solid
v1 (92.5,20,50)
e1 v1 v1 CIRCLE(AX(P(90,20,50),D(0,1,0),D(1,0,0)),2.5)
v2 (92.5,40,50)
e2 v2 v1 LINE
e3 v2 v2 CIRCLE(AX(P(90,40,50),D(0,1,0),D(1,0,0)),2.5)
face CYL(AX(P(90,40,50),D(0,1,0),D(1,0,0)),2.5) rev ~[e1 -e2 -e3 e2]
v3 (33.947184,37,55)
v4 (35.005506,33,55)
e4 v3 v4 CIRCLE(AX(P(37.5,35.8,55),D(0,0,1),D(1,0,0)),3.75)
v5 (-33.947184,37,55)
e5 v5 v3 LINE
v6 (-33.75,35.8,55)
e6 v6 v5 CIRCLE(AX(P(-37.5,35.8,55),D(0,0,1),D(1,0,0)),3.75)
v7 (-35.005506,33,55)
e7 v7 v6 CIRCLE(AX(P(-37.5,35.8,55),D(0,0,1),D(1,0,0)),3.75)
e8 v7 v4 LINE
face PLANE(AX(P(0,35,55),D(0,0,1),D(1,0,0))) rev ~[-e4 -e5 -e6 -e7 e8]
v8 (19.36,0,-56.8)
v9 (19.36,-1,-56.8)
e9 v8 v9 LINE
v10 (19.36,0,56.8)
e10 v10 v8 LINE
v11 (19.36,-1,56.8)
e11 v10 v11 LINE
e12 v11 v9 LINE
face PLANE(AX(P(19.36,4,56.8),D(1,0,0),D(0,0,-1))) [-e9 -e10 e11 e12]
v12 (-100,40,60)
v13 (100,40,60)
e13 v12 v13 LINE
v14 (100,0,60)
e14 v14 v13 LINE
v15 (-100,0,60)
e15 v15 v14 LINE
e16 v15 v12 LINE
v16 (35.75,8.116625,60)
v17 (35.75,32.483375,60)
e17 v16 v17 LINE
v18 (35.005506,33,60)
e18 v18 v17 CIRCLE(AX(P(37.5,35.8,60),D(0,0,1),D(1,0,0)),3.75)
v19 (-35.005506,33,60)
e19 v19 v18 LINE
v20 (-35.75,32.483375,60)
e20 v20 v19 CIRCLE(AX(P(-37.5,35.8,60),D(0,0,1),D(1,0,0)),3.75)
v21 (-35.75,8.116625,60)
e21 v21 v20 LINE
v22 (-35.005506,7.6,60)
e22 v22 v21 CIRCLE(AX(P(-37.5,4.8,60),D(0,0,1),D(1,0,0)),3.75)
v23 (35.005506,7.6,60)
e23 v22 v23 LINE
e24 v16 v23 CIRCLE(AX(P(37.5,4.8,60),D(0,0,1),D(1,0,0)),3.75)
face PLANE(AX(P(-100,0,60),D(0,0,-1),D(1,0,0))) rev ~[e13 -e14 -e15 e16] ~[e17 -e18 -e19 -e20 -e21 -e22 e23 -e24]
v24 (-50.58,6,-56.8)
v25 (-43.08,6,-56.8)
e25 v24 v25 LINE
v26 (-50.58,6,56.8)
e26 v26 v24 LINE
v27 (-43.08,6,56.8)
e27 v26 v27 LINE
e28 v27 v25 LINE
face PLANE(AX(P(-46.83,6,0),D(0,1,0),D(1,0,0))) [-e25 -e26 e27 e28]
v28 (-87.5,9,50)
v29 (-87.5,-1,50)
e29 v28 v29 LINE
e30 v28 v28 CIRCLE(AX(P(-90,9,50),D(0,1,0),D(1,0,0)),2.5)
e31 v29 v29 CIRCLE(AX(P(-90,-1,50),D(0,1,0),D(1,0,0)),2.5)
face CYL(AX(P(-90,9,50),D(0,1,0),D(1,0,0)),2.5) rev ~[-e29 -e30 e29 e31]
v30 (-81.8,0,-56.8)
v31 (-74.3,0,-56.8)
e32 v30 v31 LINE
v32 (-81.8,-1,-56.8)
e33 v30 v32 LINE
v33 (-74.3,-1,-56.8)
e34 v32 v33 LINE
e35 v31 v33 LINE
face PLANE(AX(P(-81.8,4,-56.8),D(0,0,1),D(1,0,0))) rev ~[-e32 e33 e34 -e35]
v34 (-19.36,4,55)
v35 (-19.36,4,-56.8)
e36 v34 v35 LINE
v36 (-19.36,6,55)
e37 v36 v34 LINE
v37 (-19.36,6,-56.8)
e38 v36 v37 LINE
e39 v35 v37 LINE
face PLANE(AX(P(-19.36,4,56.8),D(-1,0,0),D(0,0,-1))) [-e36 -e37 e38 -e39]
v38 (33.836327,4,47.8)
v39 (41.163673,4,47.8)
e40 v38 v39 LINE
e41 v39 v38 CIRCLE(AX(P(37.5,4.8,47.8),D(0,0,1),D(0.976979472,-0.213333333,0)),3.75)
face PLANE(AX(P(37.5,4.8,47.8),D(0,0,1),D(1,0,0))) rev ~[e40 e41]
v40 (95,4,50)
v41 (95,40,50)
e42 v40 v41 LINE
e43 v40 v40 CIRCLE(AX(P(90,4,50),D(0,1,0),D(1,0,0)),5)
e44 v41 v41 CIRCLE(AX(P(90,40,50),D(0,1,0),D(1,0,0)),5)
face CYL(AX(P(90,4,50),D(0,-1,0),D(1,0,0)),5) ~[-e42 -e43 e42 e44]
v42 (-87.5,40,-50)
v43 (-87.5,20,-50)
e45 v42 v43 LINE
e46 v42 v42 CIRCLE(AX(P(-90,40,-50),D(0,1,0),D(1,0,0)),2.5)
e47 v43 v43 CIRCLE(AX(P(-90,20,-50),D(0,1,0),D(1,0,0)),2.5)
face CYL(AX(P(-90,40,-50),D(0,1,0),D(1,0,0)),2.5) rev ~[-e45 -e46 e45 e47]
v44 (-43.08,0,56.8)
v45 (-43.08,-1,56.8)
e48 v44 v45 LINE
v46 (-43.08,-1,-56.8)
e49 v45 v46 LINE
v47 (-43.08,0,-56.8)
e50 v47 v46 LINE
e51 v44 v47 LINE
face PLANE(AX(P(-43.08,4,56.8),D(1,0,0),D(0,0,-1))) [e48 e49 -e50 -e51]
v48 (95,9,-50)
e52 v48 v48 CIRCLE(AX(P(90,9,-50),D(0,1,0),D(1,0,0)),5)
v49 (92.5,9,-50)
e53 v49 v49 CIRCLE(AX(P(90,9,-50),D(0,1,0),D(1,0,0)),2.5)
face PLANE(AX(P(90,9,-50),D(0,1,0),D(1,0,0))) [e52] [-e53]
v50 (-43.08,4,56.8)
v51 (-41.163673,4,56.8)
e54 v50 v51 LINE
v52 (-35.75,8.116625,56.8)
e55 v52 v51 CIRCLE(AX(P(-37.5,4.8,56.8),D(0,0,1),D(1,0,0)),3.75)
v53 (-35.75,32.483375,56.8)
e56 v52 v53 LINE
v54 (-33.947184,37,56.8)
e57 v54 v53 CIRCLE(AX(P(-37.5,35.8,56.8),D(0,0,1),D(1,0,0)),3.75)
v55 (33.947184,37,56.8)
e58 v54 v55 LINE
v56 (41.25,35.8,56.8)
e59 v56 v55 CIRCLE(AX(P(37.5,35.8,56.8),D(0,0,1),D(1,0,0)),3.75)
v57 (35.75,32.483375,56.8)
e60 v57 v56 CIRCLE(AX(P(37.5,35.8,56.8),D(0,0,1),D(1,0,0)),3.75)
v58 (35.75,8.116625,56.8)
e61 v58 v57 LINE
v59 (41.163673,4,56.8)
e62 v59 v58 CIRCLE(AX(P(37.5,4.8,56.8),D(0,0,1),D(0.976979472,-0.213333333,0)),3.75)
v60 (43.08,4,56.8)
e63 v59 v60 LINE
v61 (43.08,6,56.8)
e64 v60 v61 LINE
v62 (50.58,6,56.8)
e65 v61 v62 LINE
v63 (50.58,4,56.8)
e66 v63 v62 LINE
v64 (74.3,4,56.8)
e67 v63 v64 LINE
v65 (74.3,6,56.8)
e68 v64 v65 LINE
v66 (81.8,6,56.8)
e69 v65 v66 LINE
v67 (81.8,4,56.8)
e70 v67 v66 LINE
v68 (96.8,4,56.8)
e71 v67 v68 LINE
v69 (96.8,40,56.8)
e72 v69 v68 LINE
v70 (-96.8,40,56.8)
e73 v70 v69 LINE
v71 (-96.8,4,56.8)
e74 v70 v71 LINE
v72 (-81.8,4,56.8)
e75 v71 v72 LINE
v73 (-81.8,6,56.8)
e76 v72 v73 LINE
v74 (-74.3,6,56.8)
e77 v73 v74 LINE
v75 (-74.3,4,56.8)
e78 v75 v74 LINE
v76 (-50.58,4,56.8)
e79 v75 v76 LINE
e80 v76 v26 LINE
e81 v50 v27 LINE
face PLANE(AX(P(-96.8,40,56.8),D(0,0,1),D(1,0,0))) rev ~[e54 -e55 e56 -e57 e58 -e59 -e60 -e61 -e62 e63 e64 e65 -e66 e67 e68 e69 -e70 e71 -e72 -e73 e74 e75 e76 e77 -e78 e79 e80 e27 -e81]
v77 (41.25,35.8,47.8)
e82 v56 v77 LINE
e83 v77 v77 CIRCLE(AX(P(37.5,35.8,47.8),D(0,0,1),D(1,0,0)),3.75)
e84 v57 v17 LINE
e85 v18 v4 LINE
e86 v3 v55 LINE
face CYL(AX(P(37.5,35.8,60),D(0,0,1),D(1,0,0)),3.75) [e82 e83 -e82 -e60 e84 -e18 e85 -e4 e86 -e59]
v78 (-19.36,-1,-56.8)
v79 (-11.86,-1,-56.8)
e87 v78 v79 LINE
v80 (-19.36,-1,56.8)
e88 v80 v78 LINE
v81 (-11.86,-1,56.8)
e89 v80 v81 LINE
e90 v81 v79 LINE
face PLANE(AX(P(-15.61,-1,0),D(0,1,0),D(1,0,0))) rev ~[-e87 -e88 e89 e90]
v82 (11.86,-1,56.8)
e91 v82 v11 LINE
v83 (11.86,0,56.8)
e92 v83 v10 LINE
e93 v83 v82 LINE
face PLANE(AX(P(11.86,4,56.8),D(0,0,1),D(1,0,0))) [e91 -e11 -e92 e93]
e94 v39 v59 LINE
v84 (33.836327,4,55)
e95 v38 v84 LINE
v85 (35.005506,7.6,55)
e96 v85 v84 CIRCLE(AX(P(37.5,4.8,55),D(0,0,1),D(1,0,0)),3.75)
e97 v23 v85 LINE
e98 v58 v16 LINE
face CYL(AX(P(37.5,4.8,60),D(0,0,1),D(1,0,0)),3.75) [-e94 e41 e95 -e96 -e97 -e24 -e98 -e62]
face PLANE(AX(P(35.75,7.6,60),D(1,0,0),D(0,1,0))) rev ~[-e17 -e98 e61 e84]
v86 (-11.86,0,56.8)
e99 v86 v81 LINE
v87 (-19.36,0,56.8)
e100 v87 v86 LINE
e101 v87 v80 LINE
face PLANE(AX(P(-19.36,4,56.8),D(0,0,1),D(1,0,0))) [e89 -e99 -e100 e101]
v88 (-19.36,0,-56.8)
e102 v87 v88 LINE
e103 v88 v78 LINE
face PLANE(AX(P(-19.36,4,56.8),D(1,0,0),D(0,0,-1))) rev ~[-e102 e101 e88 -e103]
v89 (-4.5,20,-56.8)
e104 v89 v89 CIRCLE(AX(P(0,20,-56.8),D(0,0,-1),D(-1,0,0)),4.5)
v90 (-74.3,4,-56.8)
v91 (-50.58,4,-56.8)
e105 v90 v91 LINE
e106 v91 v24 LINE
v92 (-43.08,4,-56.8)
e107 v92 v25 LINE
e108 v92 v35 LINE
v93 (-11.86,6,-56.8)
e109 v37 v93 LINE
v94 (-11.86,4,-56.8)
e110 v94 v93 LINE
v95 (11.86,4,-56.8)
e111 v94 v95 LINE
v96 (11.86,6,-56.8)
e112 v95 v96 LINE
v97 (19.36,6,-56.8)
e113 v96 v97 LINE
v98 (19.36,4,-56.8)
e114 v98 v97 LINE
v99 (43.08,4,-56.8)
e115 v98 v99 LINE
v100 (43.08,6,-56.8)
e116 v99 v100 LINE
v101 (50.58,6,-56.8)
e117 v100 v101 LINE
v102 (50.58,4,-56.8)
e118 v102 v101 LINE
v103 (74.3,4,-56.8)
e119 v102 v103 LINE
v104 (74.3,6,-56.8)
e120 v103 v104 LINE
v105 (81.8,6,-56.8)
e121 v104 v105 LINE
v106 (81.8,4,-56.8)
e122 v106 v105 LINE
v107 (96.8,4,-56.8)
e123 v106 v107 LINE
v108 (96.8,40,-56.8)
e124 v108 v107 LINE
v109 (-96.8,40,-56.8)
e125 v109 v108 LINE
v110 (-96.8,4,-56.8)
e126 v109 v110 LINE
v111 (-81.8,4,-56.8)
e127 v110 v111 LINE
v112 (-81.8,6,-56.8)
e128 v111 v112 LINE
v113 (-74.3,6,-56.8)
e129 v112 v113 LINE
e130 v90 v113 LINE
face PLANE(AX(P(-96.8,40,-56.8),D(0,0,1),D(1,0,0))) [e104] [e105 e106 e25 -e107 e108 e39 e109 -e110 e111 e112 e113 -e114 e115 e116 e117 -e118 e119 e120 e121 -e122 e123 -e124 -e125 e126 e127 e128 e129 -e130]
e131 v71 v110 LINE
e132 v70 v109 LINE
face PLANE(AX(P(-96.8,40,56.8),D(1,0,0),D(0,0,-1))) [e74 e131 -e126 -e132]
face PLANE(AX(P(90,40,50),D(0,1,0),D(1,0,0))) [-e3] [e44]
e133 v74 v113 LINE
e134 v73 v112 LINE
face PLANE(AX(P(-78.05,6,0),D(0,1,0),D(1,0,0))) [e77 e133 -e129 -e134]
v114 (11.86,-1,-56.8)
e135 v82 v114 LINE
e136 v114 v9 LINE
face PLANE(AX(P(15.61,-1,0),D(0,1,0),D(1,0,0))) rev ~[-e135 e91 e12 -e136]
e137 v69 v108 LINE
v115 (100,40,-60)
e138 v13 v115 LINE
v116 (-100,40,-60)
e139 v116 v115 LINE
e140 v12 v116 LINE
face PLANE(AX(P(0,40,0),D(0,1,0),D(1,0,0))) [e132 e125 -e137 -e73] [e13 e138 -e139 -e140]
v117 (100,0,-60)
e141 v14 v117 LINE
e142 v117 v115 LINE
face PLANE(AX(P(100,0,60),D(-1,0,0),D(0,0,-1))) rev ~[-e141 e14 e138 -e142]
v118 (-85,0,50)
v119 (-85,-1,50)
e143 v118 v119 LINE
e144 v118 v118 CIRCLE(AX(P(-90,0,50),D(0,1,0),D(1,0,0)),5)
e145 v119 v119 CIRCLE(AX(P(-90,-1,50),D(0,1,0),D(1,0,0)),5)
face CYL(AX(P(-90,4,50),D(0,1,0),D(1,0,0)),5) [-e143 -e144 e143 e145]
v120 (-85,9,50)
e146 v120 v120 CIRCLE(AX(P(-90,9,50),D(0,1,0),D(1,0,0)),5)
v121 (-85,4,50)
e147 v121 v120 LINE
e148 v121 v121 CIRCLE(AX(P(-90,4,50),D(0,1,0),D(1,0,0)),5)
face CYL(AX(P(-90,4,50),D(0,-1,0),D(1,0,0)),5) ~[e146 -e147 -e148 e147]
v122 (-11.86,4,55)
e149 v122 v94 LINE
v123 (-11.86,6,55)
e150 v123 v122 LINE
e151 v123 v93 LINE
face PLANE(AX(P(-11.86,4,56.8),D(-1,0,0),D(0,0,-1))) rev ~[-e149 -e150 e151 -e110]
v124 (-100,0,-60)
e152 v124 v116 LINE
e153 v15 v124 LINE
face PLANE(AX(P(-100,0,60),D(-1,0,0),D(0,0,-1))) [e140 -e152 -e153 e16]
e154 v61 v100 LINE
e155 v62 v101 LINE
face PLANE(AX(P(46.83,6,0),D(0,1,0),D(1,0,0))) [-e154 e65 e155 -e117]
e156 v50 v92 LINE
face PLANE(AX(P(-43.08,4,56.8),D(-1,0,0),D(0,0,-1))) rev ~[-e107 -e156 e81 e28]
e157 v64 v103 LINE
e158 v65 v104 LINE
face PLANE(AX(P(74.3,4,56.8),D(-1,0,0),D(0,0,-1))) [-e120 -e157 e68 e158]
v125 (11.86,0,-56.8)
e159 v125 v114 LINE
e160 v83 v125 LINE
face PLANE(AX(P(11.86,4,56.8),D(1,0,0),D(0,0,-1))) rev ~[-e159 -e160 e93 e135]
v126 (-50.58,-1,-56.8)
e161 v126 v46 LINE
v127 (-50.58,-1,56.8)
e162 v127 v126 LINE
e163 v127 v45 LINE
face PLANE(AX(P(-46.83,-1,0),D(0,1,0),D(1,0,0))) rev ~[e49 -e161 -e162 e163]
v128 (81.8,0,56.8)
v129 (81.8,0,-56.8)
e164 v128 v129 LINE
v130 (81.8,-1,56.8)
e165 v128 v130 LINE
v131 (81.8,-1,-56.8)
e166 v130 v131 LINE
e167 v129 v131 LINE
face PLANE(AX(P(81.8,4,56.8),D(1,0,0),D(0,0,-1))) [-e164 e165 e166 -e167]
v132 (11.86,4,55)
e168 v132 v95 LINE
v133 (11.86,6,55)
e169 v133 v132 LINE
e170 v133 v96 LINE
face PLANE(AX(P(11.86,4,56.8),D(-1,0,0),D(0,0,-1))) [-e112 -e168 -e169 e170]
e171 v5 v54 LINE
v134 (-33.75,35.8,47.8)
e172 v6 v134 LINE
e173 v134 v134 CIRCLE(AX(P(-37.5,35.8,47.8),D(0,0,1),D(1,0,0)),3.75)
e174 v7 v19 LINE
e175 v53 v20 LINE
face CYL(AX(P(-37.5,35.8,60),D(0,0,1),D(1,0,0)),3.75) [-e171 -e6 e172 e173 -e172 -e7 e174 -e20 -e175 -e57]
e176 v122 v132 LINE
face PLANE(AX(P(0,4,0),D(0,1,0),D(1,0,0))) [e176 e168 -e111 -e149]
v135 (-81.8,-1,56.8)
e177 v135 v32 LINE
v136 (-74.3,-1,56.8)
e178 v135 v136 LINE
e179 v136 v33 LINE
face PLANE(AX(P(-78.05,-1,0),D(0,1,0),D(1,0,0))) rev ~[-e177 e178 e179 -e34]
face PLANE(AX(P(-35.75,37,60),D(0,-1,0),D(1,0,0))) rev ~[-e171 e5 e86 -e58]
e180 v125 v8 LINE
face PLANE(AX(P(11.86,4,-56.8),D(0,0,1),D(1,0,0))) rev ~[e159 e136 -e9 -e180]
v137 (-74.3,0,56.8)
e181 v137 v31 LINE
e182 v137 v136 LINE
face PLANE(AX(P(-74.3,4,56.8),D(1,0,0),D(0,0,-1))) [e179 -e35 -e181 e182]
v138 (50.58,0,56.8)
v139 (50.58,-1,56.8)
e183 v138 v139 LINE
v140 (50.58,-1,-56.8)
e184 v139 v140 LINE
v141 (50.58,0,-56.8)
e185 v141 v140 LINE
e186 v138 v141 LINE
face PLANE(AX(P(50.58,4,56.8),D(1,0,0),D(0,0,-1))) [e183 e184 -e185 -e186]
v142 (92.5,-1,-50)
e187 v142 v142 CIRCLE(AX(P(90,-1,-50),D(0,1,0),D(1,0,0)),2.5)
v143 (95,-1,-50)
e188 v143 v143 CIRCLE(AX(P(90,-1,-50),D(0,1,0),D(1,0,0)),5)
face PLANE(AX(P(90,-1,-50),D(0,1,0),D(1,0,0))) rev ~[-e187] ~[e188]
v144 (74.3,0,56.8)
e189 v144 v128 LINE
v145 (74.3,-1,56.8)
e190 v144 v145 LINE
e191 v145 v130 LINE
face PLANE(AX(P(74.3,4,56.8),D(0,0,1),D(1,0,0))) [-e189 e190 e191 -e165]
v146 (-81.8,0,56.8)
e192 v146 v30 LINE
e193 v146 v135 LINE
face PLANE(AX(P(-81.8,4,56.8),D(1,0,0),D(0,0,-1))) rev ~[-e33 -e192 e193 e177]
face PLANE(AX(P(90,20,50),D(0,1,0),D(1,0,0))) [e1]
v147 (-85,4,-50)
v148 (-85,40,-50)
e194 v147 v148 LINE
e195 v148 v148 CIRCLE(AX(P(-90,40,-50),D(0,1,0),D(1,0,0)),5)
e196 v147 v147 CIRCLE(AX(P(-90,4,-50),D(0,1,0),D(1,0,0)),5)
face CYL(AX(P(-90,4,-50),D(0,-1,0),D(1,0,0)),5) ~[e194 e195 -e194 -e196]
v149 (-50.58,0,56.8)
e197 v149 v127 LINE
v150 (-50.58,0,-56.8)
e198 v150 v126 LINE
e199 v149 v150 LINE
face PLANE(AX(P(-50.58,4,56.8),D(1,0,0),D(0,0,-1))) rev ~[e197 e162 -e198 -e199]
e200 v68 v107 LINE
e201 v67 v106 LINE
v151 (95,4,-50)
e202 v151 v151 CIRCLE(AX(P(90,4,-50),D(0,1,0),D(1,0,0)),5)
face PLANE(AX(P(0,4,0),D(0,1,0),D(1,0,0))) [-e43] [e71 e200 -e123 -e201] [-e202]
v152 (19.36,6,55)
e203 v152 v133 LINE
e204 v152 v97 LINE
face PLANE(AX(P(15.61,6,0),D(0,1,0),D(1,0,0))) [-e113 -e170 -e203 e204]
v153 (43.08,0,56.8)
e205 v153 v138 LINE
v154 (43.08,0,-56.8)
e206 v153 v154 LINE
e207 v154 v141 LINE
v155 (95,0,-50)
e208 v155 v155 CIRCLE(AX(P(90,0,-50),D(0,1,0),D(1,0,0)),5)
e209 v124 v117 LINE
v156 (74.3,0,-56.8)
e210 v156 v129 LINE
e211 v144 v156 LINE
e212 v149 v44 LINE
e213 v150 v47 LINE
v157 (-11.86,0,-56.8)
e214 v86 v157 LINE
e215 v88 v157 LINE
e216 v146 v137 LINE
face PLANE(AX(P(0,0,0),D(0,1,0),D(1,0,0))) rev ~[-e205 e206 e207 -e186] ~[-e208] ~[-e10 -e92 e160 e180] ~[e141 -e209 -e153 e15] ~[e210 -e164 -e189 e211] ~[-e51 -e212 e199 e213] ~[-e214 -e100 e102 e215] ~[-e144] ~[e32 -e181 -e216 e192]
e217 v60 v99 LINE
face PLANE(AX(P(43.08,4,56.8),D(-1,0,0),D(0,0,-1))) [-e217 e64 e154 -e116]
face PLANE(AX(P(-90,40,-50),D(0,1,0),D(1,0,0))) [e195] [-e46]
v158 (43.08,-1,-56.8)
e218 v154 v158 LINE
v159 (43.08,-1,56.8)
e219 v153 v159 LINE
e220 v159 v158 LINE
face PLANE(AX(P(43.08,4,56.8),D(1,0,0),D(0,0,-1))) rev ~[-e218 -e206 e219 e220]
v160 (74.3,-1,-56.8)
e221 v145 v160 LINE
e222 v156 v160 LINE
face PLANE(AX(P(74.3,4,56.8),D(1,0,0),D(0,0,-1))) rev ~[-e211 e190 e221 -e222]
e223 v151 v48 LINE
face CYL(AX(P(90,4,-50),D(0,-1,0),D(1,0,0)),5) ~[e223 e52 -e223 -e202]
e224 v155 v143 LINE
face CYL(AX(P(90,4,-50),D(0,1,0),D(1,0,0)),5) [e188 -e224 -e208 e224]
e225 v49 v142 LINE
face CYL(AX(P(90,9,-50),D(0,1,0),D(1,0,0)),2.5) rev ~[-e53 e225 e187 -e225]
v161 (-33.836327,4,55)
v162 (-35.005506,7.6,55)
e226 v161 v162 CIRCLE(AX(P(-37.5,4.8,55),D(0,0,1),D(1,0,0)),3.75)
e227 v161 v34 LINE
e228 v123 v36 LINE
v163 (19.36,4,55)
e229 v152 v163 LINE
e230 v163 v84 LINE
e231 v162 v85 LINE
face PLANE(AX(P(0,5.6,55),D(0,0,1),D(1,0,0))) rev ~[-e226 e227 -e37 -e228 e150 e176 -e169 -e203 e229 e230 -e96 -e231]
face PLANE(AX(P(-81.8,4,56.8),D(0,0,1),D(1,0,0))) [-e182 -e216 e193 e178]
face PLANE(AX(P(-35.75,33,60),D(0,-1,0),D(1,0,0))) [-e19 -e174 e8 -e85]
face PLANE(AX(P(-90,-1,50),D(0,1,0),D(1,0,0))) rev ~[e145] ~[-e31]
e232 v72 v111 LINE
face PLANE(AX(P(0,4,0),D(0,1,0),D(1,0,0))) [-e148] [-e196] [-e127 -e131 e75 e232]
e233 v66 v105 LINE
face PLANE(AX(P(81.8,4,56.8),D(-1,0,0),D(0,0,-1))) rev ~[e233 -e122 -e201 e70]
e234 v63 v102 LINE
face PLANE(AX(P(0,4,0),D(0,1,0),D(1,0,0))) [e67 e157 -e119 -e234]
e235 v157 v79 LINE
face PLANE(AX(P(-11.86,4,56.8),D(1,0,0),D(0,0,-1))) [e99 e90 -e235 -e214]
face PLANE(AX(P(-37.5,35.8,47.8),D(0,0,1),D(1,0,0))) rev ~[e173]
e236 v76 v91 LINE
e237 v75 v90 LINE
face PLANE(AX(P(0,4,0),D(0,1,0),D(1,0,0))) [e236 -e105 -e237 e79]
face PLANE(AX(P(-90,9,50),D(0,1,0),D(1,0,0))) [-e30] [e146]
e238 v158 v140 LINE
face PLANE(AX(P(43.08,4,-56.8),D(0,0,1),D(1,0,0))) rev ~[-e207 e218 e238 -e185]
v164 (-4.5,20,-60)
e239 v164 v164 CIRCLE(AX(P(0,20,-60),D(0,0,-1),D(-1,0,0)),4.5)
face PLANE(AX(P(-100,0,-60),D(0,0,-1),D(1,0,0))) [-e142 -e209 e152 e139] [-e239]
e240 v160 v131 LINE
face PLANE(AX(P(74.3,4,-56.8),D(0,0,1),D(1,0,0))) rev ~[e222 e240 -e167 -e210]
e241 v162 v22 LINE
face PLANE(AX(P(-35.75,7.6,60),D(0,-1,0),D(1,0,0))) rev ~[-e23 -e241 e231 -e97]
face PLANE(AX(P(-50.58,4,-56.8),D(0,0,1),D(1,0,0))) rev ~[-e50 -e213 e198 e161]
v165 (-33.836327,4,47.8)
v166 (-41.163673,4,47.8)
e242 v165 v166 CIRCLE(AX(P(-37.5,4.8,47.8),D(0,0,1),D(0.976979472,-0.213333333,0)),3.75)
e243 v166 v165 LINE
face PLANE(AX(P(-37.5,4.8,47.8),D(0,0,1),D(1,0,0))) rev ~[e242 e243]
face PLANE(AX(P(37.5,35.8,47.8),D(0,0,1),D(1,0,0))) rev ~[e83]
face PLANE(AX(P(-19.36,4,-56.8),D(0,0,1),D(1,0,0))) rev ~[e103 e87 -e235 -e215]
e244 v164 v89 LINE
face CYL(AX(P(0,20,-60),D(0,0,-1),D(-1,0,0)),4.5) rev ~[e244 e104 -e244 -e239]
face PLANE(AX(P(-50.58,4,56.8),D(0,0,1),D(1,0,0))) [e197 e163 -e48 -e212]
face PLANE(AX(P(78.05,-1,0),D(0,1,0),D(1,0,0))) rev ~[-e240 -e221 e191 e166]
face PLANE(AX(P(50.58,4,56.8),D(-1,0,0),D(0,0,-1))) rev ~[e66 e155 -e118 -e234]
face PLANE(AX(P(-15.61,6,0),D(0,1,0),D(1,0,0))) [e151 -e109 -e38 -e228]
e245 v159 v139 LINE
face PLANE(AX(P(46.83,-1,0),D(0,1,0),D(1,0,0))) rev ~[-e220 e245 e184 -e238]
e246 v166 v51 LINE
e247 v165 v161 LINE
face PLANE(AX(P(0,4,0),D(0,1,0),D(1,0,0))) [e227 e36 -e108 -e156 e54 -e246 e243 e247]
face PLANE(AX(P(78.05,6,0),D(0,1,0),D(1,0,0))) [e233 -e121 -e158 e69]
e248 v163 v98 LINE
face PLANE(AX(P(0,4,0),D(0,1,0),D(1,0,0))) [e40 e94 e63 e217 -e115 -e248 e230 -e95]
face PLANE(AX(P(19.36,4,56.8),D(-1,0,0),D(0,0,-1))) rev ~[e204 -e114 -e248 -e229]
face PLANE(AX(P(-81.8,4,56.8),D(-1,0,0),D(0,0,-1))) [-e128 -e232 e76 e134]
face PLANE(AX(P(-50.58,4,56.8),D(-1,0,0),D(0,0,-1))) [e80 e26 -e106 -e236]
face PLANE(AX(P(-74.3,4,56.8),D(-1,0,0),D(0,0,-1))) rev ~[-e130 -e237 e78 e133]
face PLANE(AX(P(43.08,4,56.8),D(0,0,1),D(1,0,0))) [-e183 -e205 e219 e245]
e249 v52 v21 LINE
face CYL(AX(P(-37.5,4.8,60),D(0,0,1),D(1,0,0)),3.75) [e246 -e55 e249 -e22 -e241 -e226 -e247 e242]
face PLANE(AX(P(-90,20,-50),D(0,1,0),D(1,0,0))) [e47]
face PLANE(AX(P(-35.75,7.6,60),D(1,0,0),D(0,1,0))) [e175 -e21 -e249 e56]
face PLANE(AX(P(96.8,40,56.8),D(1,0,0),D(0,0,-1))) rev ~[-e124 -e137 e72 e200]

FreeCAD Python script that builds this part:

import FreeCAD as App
import Part
import Sketcher
from FreeCAD import Vector

doc = App.newDocument("Part")
params = doc.addObject("Spreadsheet::Sheet", "Params")
for row, (alias, value) in enumerate([
    ("sketch1_width", "200 mm"),
    ("sketch1_height", "120 mm"),
    ("pad1_length", "40 mm"),
    ("sketch2_width", "193.6 mm"),
    ("sketch2_height", "113.6 mm"),
    ("pocket1_length", "36 mm"),
    ("sketch3_width", "71.5 mm"),
    ("sketch3_height", "25.4 mm"),
    ("pocket2_length", "3.5 mm"),
    ("sketch4_diameter", "7.5 mm"),
    ("pad2_length", "12.2 mm"),
    ("sketch5_height", "4 mm"),
    ("sketch5_width", "71.5 mm"),
    ("pad3_length", "5 mm"),
    ("sketch6_width", "7.5 mm"),
    ("sketch6_height", "113.6 mm"),
    ("pad4_length", "2 mm"),
    ("pad4_length2", "5 mm"),
    ("sketch7_diameter", "9 mm"),
    ("pocket3_length", "3.3 mm"),
    ("sketch8_diameter", "10 mm"),
    ("pad5_length", "36 mm"),
    ("sketch9_diameter", "10 mm"),
    ("pad6_length", "5 mm"),
    ("pad6_length2", "5 mm"),
    ("sketch10_diameter", "5 mm"),
    ("pocket4_length", "20 mm"),
    ("sketch11_diameter", "5 mm"),
], start=1):
    params.set(f"A{row}", alias)
    params.set(f"B{row}", "=" + value)
    params.setAlias(f"B{row}", alias)

body = doc.addObject("PartDesign::Body", "Body")

# Sketch on XZ plane
sketch1 = body.newObject("Sketcher::SketchObject", "Sketch")
sketch1.AttachmentSupport = (doc.getObject("XZ_Plane"), [""])
sketch1.MapMode = "FlatFace"
sketch1.addGeometry(Part.LineSegment(Vector(-100, -60, 0), Vector(-100, 60, 0)), False)
sketch1.addGeometry(Part.LineSegment(Vector(-100, 60, 0), Vector(100, 60, 0)), False)
sketch1.addGeometry(Part.LineSegment(Vector(100, 60, 0), Vector(100, -60, 0)), False)
sketch1.addGeometry(Part.LineSegment(Vector(100, -60, 0), Vector(-100, -60, 0)), False)
sketch1.addConstraint(Sketcher.Constraint("Coincident", 0, 2, 1, 1))
sketch1.addConstraint(Sketcher.Constraint("Coincident", 1, 2, 2, 1))
sketch1.addConstraint(Sketcher.Constraint("Coincident", 2, 2, 3, 1))
sketch1.addConstraint(Sketcher.Constraint("Coincident", 3, 2, 0, 1))
sketch1.addConstraint(Sketcher.Constraint("Vertical", 0))
sketch1.addConstraint(Sketcher.Constraint("Horizontal", 1))
sketch1.addConstraint(Sketcher.Constraint("Vertical", 2))
sketch1.addConstraint(Sketcher.Constraint("Horizontal", 3))
sketch1.addConstraint(Sketcher.Constraint("Symmetric", 0, 2, 2, 2, -1, 1))
sketch1.addConstraint(Sketcher.Constraint("DistanceX", 1, 1, 1, 2, 200.0))
sketch1.addConstraint(Sketcher.Constraint("DistanceY", 0, 1, 0, 2, 120.0))
sketch1.setExpression("Constraints[9]", "Params.sketch1_width")
sketch1.setExpression("Constraints[10]", "Params.sketch1_height")
pad1 = body.newObject("PartDesign::Pad", "Pad")
pad1.Profile = sketch1
pad1.setExpression("Length", "Params.pad1_length")
pad1.Reversed = True

# Sketch on XZ plane
sketch2 = body.newObject("Sketcher::SketchObject", "Sketch001")
sketch2.AttachmentSupport = (doc.getObject("XZ_Plane"), [""])
sketch2.MapMode = "FlatFace"
sketch2.AttachmentOffset = App.Placement(Vector(0, 0, -40), App.Rotation())
sketch2.addGeometry(Part.LineSegment(Vector(-96.8, -56.8, 0), Vector(-96.8, 56.8, 0)), False)
sketch2.addGeometry(Part.LineSegment(Vector(-96.8, 56.8, 0), Vector(96.8, 56.8, 0)), False)
sketch2.addGeometry(Part.LineSegment(Vector(96.8, 56.8, 0), Vector(96.8, -56.8, 0)), False)
sketch2.addGeometry(Part.LineSegment(Vector(96.8, -56.8, 0), Vector(-96.8, -56.8, 0)), False)
sketch2.addConstraint(Sketcher.Constraint("Coincident", 0, 2, 1, 1))
sketch2.addConstraint(Sketcher.Constraint("Coincident", 1, 2, 2, 1))
sketch2.addConstraint(Sketcher.Constraint("Coincident", 2, 2, 3, 1))
sketch2.addConstraint(Sketcher.Constraint("Coincident", 3, 2, 0, 1))
sketch2.addConstraint(Sketcher.Constraint("Vertical", 0))
sketch2.addConstraint(Sketcher.Constraint("Horizontal", 1))
sketch2.addConstraint(Sketcher.Constraint("Vertical", 2))
sketch2.addConstraint(Sketcher.Constraint("Horizontal", 3))
sketch2.addConstraint(Sketcher.Constraint("Symmetric", 0, 2, 2, 2, -1, 1))
sketch2.addConstraint(Sketcher.Constraint("DistanceX", 1, 1, 1, 2, 193.6))
sketch2.addConstraint(Sketcher.Constraint("DistanceY", 0, 1, 0, 2, 113.6))
sketch2.setExpression("Constraints[9]", "Params.sketch2_width")
sketch2.setExpression("Constraints[10]", "Params.sketch2_height")
pocket1 = body.newObject("PartDesign::Pocket", "Pocket")
pocket1.Profile = sketch2
pocket1.setExpression("Length", "Params.pocket1_length")
pocket1.Reversed = True

# Sketch on XY plane
sketch3 = body.newObject("Sketcher::SketchObject", "Sketch002")
sketch3.AttachmentSupport = (doc.getObject("XY_Plane"), [""])
sketch3.MapMode = "FlatFace"
sketch3.AttachmentOffset = App.Placement(Vector(0, 0, 60), App.Rotation())
sketch3.addGeometry(Part.LineSegment(Vector(-35.75, 33, 0), Vector(-35.75, 7.6, 0)), False)
sketch3.addGeometry(Part.LineSegment(Vector(-35.75, 7.6, 0), Vector(35.75, 7.6, 0)), False)
sketch3.addGeometry(Part.LineSegment(Vector(35.75, 7.6, 0), Vector(35.75, 33, 0)), False)
sketch3.addGeometry(Part.LineSegment(Vector(35.75, 33, 0), Vector(-35.75, 33, 0)), False)
sketch3.addConstraint(Sketcher.Constraint("Coincident", 0, 2, 1, 1))
sketch3.addConstraint(Sketcher.Constraint("Coincident", 1, 2, 2, 1))
sketch3.addConstraint(Sketcher.Constraint("Coincident", 2, 2, 3, 1))
sketch3.addConstraint(Sketcher.Constraint("Coincident", 3, 2, 0, 1))
sketch3.addConstraint(Sketcher.Constraint("Vertical", 0))
sketch3.addConstraint(Sketcher.Constraint("Horizontal", 1))
sketch3.addConstraint(Sketcher.Constraint("Vertical", 2))
sketch3.addConstraint(Sketcher.Constraint("Horizontal", 3))
sketch3.addConstraint(Sketcher.Constraint("DistanceX", 1, 1, 1, 2, 71.5))
sketch3.addConstraint(Sketcher.Constraint("DistanceY", 0, 2, 0, 1, 25.4))
sketch3.addConstraint(Sketcher.Constraint("DistanceY", -1, 1, 2, 2, 33.0))
sketch3.addConstraint(Sketcher.Constraint("DistanceX", 0, 2, -1, 1, 35.75))
sketch3.setExpression("Constraints[8]", "Params.sketch3_width")
sketch3.setExpression("Constraints[9]", "Params.sketch3_height")
pocket2 = body.newObject("PartDesign::Pocket", "Pocket001")
pocket2.Profile = sketch3
pocket2.setExpression("Length", "Params.pocket2_length")

# Sketch on XY plane
sketch4 = body.newObject("Sketcher::SketchObject", "Sketch003")
sketch4.AttachmentSupport = (doc.getObject("XY_Plane"), [""])
sketch4.MapMode = "FlatFace"
sketch4.AttachmentOffset = App.Placement(Vector(0, 0, 60), App.Rotation())
sketch4.addGeometry(Part.Circle(Vector(-37.5, 35.8, 0), Vector(0, 0, 1), 3.75), False)
sketch4.addGeometry(Part.Circle(Vector(37.5, 35.8, 0), Vector(0, 0, 1), 3.75), False)
sketch4.addGeometry(Part.Circle(Vector(37.5, 4.8, 0), Vector(0, 0, 1), 3.75), False)
sketch4.addGeometry(Part.Circle(Vector(-37.5, 4.8, 0), Vector(0, 0, 1), 3.75), False)
sketch4.addConstraint(Sketcher.Constraint("Equal", 0, 1))
sketch4.addConstraint(Sketcher.Constraint("Equal", 1, 2))
sketch4.addConstraint(Sketcher.Constraint("Equal", 2, 3))
sketch4.addConstraint(Sketcher.Constraint("Symmetric", 0, 3, 1, 3, -2))
sketch4.addConstraint(Sketcher.Constraint("Symmetric", 2, 3, 3, 3, -2))
sketch4.addConstraint(Sketcher.Constraint("Vertical", 1, 3, 2, 3))
sketch4.addConstraint(Sketcher.Constraint("Diameter", 0, 7.5))
sketch4.addConstraint(Sketcher.Constraint("DistanceX", 0, 3, 1, 3, 75.0))
sketch4.addConstraint(Sketcher.Constraint("DistanceY", 2, 3, 1, 3, 31.0))
sketch4.addConstraint(Sketcher.Constraint("DistanceY", -1, 1, 0, 3, 35.8))
sketch4.setExpression("Constraints[6]", "Params.sketch4_diameter")
pad2 = body.newObject("PartDesign::Pad", "Pad001")
pad2.Profile = sketch4
pad2.setExpression("Length", "Params.pad2_length")
pad2.Reversed = True

# Sketch on XY plane
sketch5 = body.newObject("Sketcher::SketchObject", "Sketch004")
sketch5.AttachmentSupport = (doc.getObject("XY_Plane"), [""])
sketch5.MapMode = "FlatFace"
sketch5.AttachmentOffset = App.Placement(Vector(0, 0, 60), App.Rotation())
sketch5.addGeometry(Part.LineSegment(Vector(-35.75, 7.6, 0), Vector(-35.75, 3.6, 0)), False)
sketch5.addGeometry(Part.LineSegment(Vector(-35.75, 3.6, 0), Vector(35.75, 3.6, 0)), False)
sketch5.addGeometry(Part.LineSegment(Vector(35.75, 3.6, 0), Vector(35.75, 7.6, 0)), False)
sketch5.addGeometry(Part.LineSegment(Vector(35.75, 7.6, 0), Vector(-35.75, 7.6, 0)), False)
sketch5.addGeometry(Part.LineSegment(Vector(-35.75, 37, 0), Vector(-35.75, 33, 0)), False)
sketch5.addGeometry(Part.LineSegment(Vector(-35.75, 33, 0), Vector(35.75, 33, 0)), False)
sketch5.addGeometry(Part.LineSegment(Vector(35.75, 33, 0), Vector(35.75, 37, 0)), False)
sketch5.addGeometry(Part.LineSegment(Vector(35.75, 37, 0), Vector(-35.75, 37, 0)), False)
sketch5.addConstraint(Sketcher.Constraint("Coincident", 0, 2, 1, 1))
sketch5.addConstraint(Sketcher.Constraint("Coincident", 1, 2, 2, 1))
sketch5.addConstraint(Sketcher.Constraint("Coincident", 2, 2, 3, 1))
sketch5.addConstraint(Sketcher.Constraint("Coincident", 3, 2, 0, 1))
sketch5.addConstraint(Sketcher.Constraint("Coincident", 4, 2, 5, 1))
sketch5.addConstraint(Sketcher.Constraint("Coincident", 5, 2, 6, 1))
sketch5.addConstraint(Sketcher.Constraint("Coincident", 6, 2, 7, 1))
sketch5.addConstraint(Sketcher.Constraint("Coincident", 7, 2, 4, 1))
sketch5.addConstraint(Sketcher.Constraint("Vertical", 0))
sketch5.addConstraint(Sketcher.Constraint("Horizontal", 1))
sketch5.addConstraint(Sketcher.Constraint("Vertical", 2))
sketch5.addConstraint(Sketcher.Constraint("Horizontal", 3))
sketch5.addConstraint(Sketcher.Constraint("Vertical", 4))
sketch5.addConstraint(Sketcher.Constraint("Horizontal", 5))
sketch5.addConstraint(Sketcher.Constraint("Vertical", 6))
sketch5.addConstraint(Sketcher.Constraint("Horizontal", 7))
sketch5.addConstraint(Sketcher.Constraint("Vertical", 3, 2, 4, 2))
sketch5.addConstraint(Sketcher.Constraint("Vertical", 2, 2, 5, 2))
sketch5.addConstraint(Sketcher.Constraint("Equal", 2, 4))
sketch5.addConstraint(Sketcher.Constraint("DistanceY", 0, 2, 0, 1, 4.0))
sketch5.addConstraint(Sketcher.Constraint("DistanceX", 1, 1, 1, 2, 71.5))
sketch5.addConstraint(Sketcher.Constraint("DistanceY", -1, 1, 4, 2, 33.0))
sketch5.addConstraint(Sketcher.Constraint("DistanceY", -1, 1, 0, 2, 3.6))
sketch5.addConstraint(Sketcher.Constraint("DistanceX", 0, 2, -1, 1, 35.75))
sketch5.setExpression("Constraints[19]", "Params.sketch5_height")
sketch5.setExpression("Constraints[20]", "Params.sketch5_width")
pad3 = body.newObject("PartDesign::Pad", "Pad002")
pad3.Profile = sketch5
pad3.setExpression("Length", "Params.pad3_length")
pad3.Reversed = True

# Sketch on XZ plane
sketch6 = body.newObject("Sketcher::SketchObject", "Sketch005")
sketch6.AttachmentSupport = (doc.getObject("XZ_Plane"), [""])
sketch6.MapMode = "FlatFace"
sketch6.AttachmentOffset = App.Placement(Vector(0, 0, -4), App.Rotation())
sketch6.addGeometry(Part.LineSegment(Vector(-81.8, -56.8, 0), Vector(-81.8, 56.8, 0)), False)
sketch6.addGeometry(Part.LineSegment(Vector(-81.8, 56.8, 0), Vector(-74.3, 56.8, 0)), False)
sketch6.addGeometry(Part.LineSegment(Vector(-74.3, 56.8, 0), Vector(-74.3, -56.8, 0)), False)
sketch6.addGeometry(Part.LineSegment(Vector(-74.3, -56.8, 0), Vector(-81.8, -56.8, 0)), False)
sketch6.addGeometry(Part.LineSegment(Vector(-50.58, -56.8, 0), Vector(-50.58, 56.8, 0)), False)
sketch6.addGeometry(Part.LineSegment(Vector(-50.58, 56.8, 0), Vector(-43.08, 56.8, 0)), False)
sketch6.addGeometry(Part.LineSegment(Vector(-43.08, 56.8, 0), Vector(-43.08, -56.8, 0)), False)
sketch6.addGeometry(Part.LineSegment(Vector(-43.08, -56.8, 0), Vector(-50.58, -56.8, 0)), False)
sketch6.addGeometry(Part.LineSegment(Vector(-19.36, -56.8, 0), Vector(-19.36, 56.8, 0)), False)
sketch6.addGeometry(Part.LineSegment(Vector(-19.36, 56.8, 0), Vector(-11.86, 56.8, 0)), False)
sketch6.addGeometry(Part.LineSegment(Vector(-11.86, 56.8, 0), Vector(-11.86, -56.8, 0)), False)
sketch6.addGeometry(Part.LineSegment(Vector(-11.86, -56.8, 0), Vector(-19.36, -56.8, 0)), False)
sketch6.addGeometry(Part.LineSegment(Vector(11.86, -56.8, 0), Vector(11.86, 56.8, 0)), False)
sketch6.addGeometry(Part.LineSegment(Vector(11.86, 56.8, 0), Vector(19.36, 56.8, 0)), False)
sketch6.addGeometry(Part.LineSegment(Vector(19.36, 56.8, 0), Vector(19.36, -56.8, 0)), False)
sketch6.addGeometry(Part.LineSegment(Vector(19.36, -56.8, 0), Vector(11.86, -56.8, 0)), False)
sketch6.addGeometry(Part.LineSegment(Vector(43.08, -56.8, 0), Vector(43.08, 56.8, 0)), False)
sketch6.addGeometry(Part.LineSegment(Vector(43.08, 56.8, 0), Vector(50.58, 56.8, 0)), False)
sketch6.addGeometry(Part.LineSegment(Vector(50.58, 56.8, 0), Vector(50.58, -56.8, 0)), False)
sketch6.addGeometry(Part.LineSegment(Vector(50.58, -56.8, 0), Vector(43.08, -56.8, 0)), False)
sketch6.addGeometry(Part.LineSegment(Vector(74.3, -56.8, 0), Vector(74.3, 56.8, 0)), False)
sketch6.addGeometry(Part.LineSegment(Vector(74.3, 56.8, 0), Vector(81.8, 56.8, 0)), False)
sketch6.addGeometry(Part.LineSegment(Vector(81.8, 56.8, 0), Vector(81.8, -56.8, 0)), False)
sketch6.addGeometry(Part.LineSegment(Vector(81.8, -56.8, 0), Vector(74.3, -56.8, 0)), False)
sketch6.addConstraint(Sketcher.Constraint("Coincident", 0, 2, 1, 1))
sketch6.addConstraint(Sketcher.Constraint("Coincident", 1, 2, 2, 1))
sketch6.addConstraint(Sketcher.Constraint("Coincident", 2, 2, 3, 1))
sketch6.addConstraint(Sketcher.Constraint("Coincident", 3, 2, 0, 1))
sketch6.addConstraint(Sketcher.Constraint("Coincident", 4, 2, 5, 1))
sketch6.addConstraint(Sketcher.Constraint("Coincident", 5, 2, 6, 1))
sketch6.addConstraint(Sketcher.Constraint("Coincident", 6, 2, 7, 1))
sketch6.addConstraint(Sketcher.Constraint("Coincident", 7, 2, 4, 1))
sketch6.addConstraint(Sketcher.Constraint("Coincident", 8, 2, 9, 1))
sketch6.addConstraint(Sketcher.Constraint("Coincident", 9, 2, 10, 1))
sketch6.addConstraint(Sketcher.Constraint("Coincident", 10, 2, 11, 1))
sketch6.addConstraint(Sketcher.Constraint("Coincident", 11, 2, 8, 1))
sketch6.addConstraint(Sketcher.Constraint("Coincident", 12, 2, 13, 1))
sketch6.addConstraint(Sketcher.Constraint("Coincident", 13, 2, 14, 1))
sketch6.addConstraint(Sketcher.Constraint("Coincident", 14, 2, 15, 1))
sketch6.addConstraint(Sketcher.Constraint("Coincident", 15, 2, 12, 1))
sketch6.addConstraint(Sketcher.Constraint("Coincident", 16, 2, 17, 1))
sketch6.addConstraint(Sketcher.Constraint("Coincident", 17, 2, 18, 1))
sketch6.addConstraint(Sketcher.Constraint("Coincident", 18, 2, 19, 1))
sketch6.addConstraint(Sketcher.Constraint("Coincident", 19, 2, 16, 1))
sketch6.addConstraint(Sketcher.Constraint("Coincident", 20, 2, 21, 1))
sketch6.addConstraint(Sketcher.Constraint("Coincident", 21, 2, 22, 1))
sketch6.addConstraint(Sketcher.Constraint("Coincident", 22, 2, 23, 1))
sketch6.addConstraint(Sketcher.Constraint("Coincident", 23, 2, 20, 1))
sketch6.addConstraint(Sketcher.Constraint("Vertical", 0))
sketch6.addConstraint(Sketcher.Constraint("Horizontal", 1))
sketch6.addConstraint(Sketcher.Constraint("Vertical", 2))
sketch6.addConstraint(Sketcher.Constraint("Horizontal", 3))
sketch6.addConstraint(Sketcher.Constraint("Vertical", 4))
sketch6.addConstraint(Sketcher.Constraint("Horizontal", 5))
sketch6.addConstraint(Sketcher.Constraint("Vertical", 6))
sketch6.addConstraint(Sketcher.Constraint("Horizontal", 7))
sketch6.addConstraint(Sketcher.Constraint("Vertical", 8))
sketch6.addConstraint(Sketcher.Constraint("Horizontal", 9))
sketch6.addConstraint(Sketcher.Constraint("Vertical", 10))
sketch6.addConstraint(Sketcher.Constraint("Horizontal", 11))
sketch6.addConstraint(Sketcher.Constraint("Vertical", 12))
sketch6.addConstraint(Sketcher.Constraint("Horizontal", 13))
sketch6.addConstraint(Sketcher.Constraint("Vertical", 14))
sketch6.addConstraint(Sketcher.Constraint("Horizontal", 15))
sketch6.addConstraint(Sketcher.Constraint("Vertical", 16))
sketch6.addConstraint(Sketcher.Constraint("Horizontal", 17))
sketch6.addConstraint(Sketcher.Constraint("Vertical", 18))
sketch6.addConstraint(Sketcher.Constraint("Horizontal", 19))
sketch6.addConstraint(Sketcher.Constraint("Vertical", 20))
sketch6.addConstraint(Sketcher.Constraint("Horizontal", 21))
sketch6.addConstraint(Sketcher.Constraint("Vertical", 22))
sketch6.addConstraint(Sketcher.Constraint("Horizontal", 23))
sketch6.addConstraint(Sketcher.Constraint("Symmetric", 10, 2, 12, 2, -1, 1))
sketch6.addConstraint(Sketcher.Constraint("Symmetric", 8, 2, 14, 2, -1, 1))
sketch6.addConstraint(Sketcher.Constraint("Symmetric", 6, 2, 16, 2, -1, 1))
sketch6.addConstraint(Sketcher.Constraint("Symmetric", 4, 2, 18, 2, -1, 1))
sketch6.addConstraint(Sketcher.Constraint("Symmetric", 2, 2, 20, 2, -1, 1))
sketch6.addConstraint(Sketcher.Constraint("Symmetric", 0, 2, 22, 2, -1, 1))
sketch6.addConstraint(Sketcher.Constraint("Horizontal", 1, 2, 4, 2))
sketch6.addConstraint(Sketcher.Constraint("Horizontal", 3, 2, 6, 2))
sketch6.addConstraint(Sketcher.Constraint("Horizontal", 5, 2, 8, 2))
sketch6.addConstraint(Sketcher.Constraint("Horizontal", 7, 2, 10, 2))
sketch6.addConstraint(Sketcher.Constraint("Horizontal", 9, 2, 12, 2))
sketch6.addConstraint(Sketcher.Constraint("Equal", 3, 5))
sketch6.addConstraint(Sketcher.Constraint("Equal", 7, 9))
sketch6.addConstraint(Sketcher.Constraint("DistanceX", 1, 1, 1, 2, 7.5))
sketch6.addConstraint(Sketcher.Constraint("DistanceY", 0, 1, 0, 2, 113.6))
sketch6.addConstraint(Sketcher.Constraint("DistanceX", 0, 2, -1, 1, 81.8))
sketch6.addConstraint(Sketcher.Constraint("DistanceX", 4, 2, -1, 1, 50.58))
sketch6.addConstraint(Sketcher.Constraint("DistanceX", 8, 2, -1, 1, 19.36))
sketch6.setExpression("Constraints[61]", "Params.sketch6_width")
sketch6.setExpression("Constraints[62]", "Params.sketch6_height")
pad4 = body.newObject("PartDesign::Pad", "Pad003")
pad4.Profile = sketch6
pad4.Type = "TwoLengths"
pad4.setExpression("Length", "Params.pad4_length")
pad4.setExpression("Length2", "Params.pad4_length2")
pad4.Reversed = True

# Sketch on XY plane
sketch7 = body.newObject("Sketcher::SketchObject", "Sketch006")
sketch7.AttachmentSupport = (doc.getObject("XY_Plane"), [""])
sketch7.MapMode = "FlatFace"
sketch7.AttachmentOffset = App.Placement(Vector(0, 0, -60), App.Rotation())
sketch7.addGeometry(Part.Circle(Vector(0, 20, 0), Vector(0, 0, 1), 4.5), False)
sketch7.addConstraint(Sketcher.Constraint("PointOnObject", 0, 3, -2))
sketch7.addConstraint(Sketcher.Constraint("Diameter", 0, 9.0))
sketch7.addConstraint(Sketcher.Constraint("DistanceY", -1, 1, 0, 3, 20.0))
sketch7.setExpression("Constraints[1]", "Params.sketch7_diameter")
pocket3 = body.newObject("PartDesign::Pocket", "Pocket002")
pocket3.Profile = sketch7
pocket3.setExpression("Length", "Params.pocket3_length")
pocket3.Reversed = True

# Sketch on XZ plane
sketch8 = body.newObject("Sketcher::SketchObject", "Sketch007")
sketch8.AttachmentSupport = (doc.getObject("XZ_Plane"), [""])
sketch8.MapMode = "FlatFace"
sketch8.AttachmentOffset = App.Placement(Vector(0, 0, -4), App.Rotation())
sketch8.addGeometry(Part.Circle(Vector(-90, -50, 0), Vector(0, 0, 1), 5), False)
sketch8.addGeometry(Part.Circle(Vector(90, 50, 0), Vector(0, 0, 1), 5), False)
sketch8.addConstraint(Sketcher.Constraint("Equal", 0, 1))
sketch8.addConstraint(Sketcher.Constraint("Symmetric", 0, 3, 1, 3, -1, 1))
sketch8.addConstraint(Sketcher.Constraint("Diameter", 0, 10.0))
sketch8.addConstraint(Sketcher.Constraint("DistanceX", 0, 3, -1, 1, 90.0))
sketch8.addConstraint(Sketcher.Constraint("DistanceY", 0, 3, -1, 1, 50.0))
sketch8.setExpression("Constraints[2]", "Params.sketch8_diameter")
pad5 = body.newObject("PartDesign::Pad", "Pad004")
pad5.Profile = sketch8
pad5.setExpression("Length", "Params.pad5_length")
pad5.Reversed = True

# Sketch on XZ plane
sketch9 = body.newObject("Sketcher::SketchObject", "Sketch008")
sketch9.AttachmentSupport = (doc.getObject("XZ_Plane"), [""])
sketch9.MapMode = "FlatFace"
sketch9.AttachmentOffset = App.Placement(Vector(0, 0, -4), App.Rotation())
sketch9.addGeometry(Part.Circle(Vector(90, -50, 0), Vector(0, 0, 1), 5), False)
sketch9.addGeometry(Part.Circle(Vector(-90, 50, 0), Vector(0, 0, 1), 5), False)
sketch9.addConstraint(Sketcher.Constraint("Equal", 0, 1))
sketch9.addConstraint(Sketcher.Constraint("Symmetric", 0, 3, 1, 3, -1, 1))
sketch9.addConstraint(Sketcher.Constraint("Diameter", 0, 10.0))
sketch9.addConstraint(Sketcher.Constraint("DistanceX", -1, 1, 0, 3, 90.0))
sketch9.addConstraint(Sketcher.Constraint("DistanceY", 0, 3, -1, 1, 50.0))
sketch9.setExpression("Constraints[2]", "Params.sketch9_diameter")
pad6 = body.newObject("PartDesign::Pad", "Pad005")
pad6.Profile = sketch9
pad6.Type = "TwoLengths"
pad6.setExpression("Length", "Params.pad6_length")
pad6.setExpression("Length2", "Params.pad6_length2")
pad6.Reversed = True

# Sketch on XZ plane
sketch10 = body.newObject("Sketcher::SketchObject", "Sketch009")
sketch10.AttachmentSupport = (doc.getObject("XZ_Plane"), [""])
sketch10.MapMode = "FlatFace"
sketch10.AttachmentOffset = App.Placement(Vector(0, 0, -40), App.Rotation())
sketch10.addGeometry(Part.Circle(Vector(-90, -50, 0), Vector(0, 0, 1), 2.5), False)
sketch10.addGeometry(Part.Circle(Vector(90, 50, 0), Vector(0, 0, 1), 2.5), False)
sketch10.addConstraint(Sketcher.Constraint("Equal", 0, 1))
sketch10.addConstraint(Sketcher.Constraint("Symmetric", 0, 3, 1, 3, -1, 1))
sketch10.addConstraint(Sketcher.Constraint("Diameter", 0, 5.0))
sketch10.addConstraint(Sketcher.Constraint("DistanceX", 0, 3, -1, 1, 90.0))
sketch10.addConstraint(Sketcher.Constraint("DistanceY", 0, 3, -1, 1, 50.0))
sketch10.setExpression("Constraints[2]", "Params.sketch10_diameter")
pocket4 = body.newObject("PartDesign::Pocket", "Pocket003")
pocket4.Profile = sketch10
pocket4.setExpression("Length", "Params.pocket4_length")
pocket4.Reversed = True

# Sketch on XZ plane
sketch11 = body.newObject("Sketcher::SketchObject", "Sketch010")
sketch11.AttachmentSupport = (doc.getObject("XZ_Plane"), [""])
sketch11.MapMode = "FlatFace"
sketch11.AttachmentOffset = App.Placement(Vector(0, 0, -9), App.Rotation())
sketch11.addGeometry(Part.Circle(Vector(-90, 50, 0), Vector(0, 0, 1), 2.5), False)
sketch11.addGeometry(Part.Circle(Vector(90, -50, 0), Vector(0, 0, 1), 2.5), False)
sketch11.addConstraint(Sketcher.Constraint("Equal", 0, 1))
sketch11.addConstraint(Sketcher.Constraint("Symmetric", 0, 3, 1, 3, -1, 1))
sketch11.addConstraint(Sketcher.Constraint("Diameter", 0, 5.0))
sketch11.addConstraint(Sketcher.Constraint("DistanceX", 0, 3, -1, 1, 90.0))
sketch11.addConstraint(Sketcher.Constraint("DistanceY", -1, 1, 0, 3, 50.0))
sketch11.setExpression("Constraints[2]", "Params.sketch11_diameter")
pocket5 = body.newObject("PartDesign::Pocket", "Pocket004")
pocket5.Profile = sketch11
pocket5.Type = "ThroughAll"
pocket5.Reversed = True

doc.recompute()
